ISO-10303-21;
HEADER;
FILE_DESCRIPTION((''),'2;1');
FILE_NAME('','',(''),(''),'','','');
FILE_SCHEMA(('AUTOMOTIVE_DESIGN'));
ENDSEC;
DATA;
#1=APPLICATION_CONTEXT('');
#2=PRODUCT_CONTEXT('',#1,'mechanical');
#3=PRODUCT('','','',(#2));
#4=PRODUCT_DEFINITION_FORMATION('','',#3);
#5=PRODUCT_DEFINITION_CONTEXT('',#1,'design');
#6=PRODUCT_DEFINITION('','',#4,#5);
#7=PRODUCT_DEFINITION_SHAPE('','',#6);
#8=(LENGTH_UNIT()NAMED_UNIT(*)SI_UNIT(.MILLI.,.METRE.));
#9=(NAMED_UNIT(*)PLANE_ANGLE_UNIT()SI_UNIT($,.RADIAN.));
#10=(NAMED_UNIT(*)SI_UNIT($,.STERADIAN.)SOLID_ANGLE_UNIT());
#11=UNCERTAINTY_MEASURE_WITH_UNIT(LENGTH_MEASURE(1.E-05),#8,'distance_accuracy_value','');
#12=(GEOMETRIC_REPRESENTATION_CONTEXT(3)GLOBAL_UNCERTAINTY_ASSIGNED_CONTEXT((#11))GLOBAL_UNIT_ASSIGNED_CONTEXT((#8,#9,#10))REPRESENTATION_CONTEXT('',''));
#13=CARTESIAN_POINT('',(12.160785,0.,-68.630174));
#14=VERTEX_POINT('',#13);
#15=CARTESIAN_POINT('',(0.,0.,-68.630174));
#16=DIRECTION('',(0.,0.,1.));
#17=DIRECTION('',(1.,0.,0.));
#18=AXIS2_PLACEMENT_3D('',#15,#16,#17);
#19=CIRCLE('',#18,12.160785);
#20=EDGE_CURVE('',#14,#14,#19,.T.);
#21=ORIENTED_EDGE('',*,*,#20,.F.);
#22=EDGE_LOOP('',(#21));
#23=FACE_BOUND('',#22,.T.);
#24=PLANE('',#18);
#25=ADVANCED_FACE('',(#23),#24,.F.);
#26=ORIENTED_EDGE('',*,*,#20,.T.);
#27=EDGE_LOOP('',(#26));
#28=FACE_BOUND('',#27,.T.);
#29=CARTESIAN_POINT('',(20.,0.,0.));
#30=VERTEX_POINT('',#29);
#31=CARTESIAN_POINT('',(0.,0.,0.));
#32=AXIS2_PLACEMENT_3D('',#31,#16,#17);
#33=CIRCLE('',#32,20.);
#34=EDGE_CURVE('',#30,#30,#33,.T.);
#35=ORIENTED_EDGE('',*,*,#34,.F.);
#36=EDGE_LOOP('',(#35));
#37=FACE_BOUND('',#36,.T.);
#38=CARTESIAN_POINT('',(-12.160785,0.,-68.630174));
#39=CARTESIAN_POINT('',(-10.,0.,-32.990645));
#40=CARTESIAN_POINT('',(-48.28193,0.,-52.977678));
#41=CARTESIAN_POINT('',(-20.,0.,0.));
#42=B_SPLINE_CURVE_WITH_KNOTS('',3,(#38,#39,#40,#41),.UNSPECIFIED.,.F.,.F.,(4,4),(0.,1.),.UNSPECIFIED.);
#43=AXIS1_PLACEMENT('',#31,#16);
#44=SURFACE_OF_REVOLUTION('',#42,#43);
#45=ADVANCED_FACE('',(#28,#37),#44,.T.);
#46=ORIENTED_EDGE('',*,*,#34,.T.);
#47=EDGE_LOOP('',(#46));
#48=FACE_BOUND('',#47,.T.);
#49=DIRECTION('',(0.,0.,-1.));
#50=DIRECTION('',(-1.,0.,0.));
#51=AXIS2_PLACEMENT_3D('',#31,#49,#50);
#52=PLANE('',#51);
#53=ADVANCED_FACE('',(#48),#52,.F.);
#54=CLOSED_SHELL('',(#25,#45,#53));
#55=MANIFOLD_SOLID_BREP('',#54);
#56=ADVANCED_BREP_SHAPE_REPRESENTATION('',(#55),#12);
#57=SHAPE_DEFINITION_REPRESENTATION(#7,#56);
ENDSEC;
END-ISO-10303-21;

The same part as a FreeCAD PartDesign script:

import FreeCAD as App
import Part
import Sketcher
from FreeCAD import Vector

doc = App.newDocument("Part")
params = doc.addObject("Spreadsheet::Sheet", "Params")
for row, (alias, value) in enumerate([
    ("revolution_angle", "360 deg"),
], start=1):
    params.set(f"A{row}", alias)
    params.set(f"B{row}", "=" + value)
    params.setAlias(f"B{row}", alias)

body = doc.addObject("PartDesign::Body", "Body")

sketch1 = doc.addObject("Sketcher::SketchObject", "Sketch")
body.addObject(sketch1)
sketch1.AttachmentSupport = (doc.XZ_Plane, [""])
sketch1.MapMode = "FlatFace"
sketch1.addGeometry(Part.LineSegment(Vector(0, 0, 0), Vector(0, -68.630174, 0)), False)
sketch1.addGeometry(Part.LineSegment(Vector(0, -68.630174, 0), Vector(-12.160785, -68.630174, 0)), False)
sketch1.addGeometry(Part.BSplineCurve([Vector(-20, 0, 0), Vector(-48.28193, -52.977678, 0), Vector(-10, -32.990645, 0), Vector(-12.160785, -68.630174, 0)], [4, 4], [0, 1], False, 3, [1, 1, 1, 1], False), False)
sketch1.addGeometry(Part.LineSegment(Vector(-20, 0, 0), Vector(0, 0, 0)), False)
sketch1.addConstraint(Sketcher.Constraint("Block", 2))
sketch1.addConstraint(Sketcher.Constraint("Coincident", 0, 2, 1, 1))
sketch1.addConstraint(Sketcher.Constraint("Coincident", 1, 2, 2, 2))
sketch1.addConstraint(Sketcher.Constraint("Coincident", 2, 1, 3, 1))
sketch1.addConstraint(Sketcher.Constraint("Coincident", 3, 2, 0, 1))
sketch1.addConstraint(Sketcher.Constraint("Vertical", 0))
sketch1.addConstraint(Sketcher.Constraint("Horizontal", 1))
sketch1.addConstraint(Sketcher.Constraint("Horizontal", 3))
sketch1.addConstraint(Sketcher.Constraint("PointOnObject", 0, 2, -2))
revolution = doc.addObject("PartDesign::Revolution", "Revolution")
body.addObject(revolution)
revolution.Profile = sketch1
revolution.ReferenceAxis = (sketch1, ["V_Axis"])
revolution.setExpression("Angle", "Params.revolution_angle")

doc.recompute()
